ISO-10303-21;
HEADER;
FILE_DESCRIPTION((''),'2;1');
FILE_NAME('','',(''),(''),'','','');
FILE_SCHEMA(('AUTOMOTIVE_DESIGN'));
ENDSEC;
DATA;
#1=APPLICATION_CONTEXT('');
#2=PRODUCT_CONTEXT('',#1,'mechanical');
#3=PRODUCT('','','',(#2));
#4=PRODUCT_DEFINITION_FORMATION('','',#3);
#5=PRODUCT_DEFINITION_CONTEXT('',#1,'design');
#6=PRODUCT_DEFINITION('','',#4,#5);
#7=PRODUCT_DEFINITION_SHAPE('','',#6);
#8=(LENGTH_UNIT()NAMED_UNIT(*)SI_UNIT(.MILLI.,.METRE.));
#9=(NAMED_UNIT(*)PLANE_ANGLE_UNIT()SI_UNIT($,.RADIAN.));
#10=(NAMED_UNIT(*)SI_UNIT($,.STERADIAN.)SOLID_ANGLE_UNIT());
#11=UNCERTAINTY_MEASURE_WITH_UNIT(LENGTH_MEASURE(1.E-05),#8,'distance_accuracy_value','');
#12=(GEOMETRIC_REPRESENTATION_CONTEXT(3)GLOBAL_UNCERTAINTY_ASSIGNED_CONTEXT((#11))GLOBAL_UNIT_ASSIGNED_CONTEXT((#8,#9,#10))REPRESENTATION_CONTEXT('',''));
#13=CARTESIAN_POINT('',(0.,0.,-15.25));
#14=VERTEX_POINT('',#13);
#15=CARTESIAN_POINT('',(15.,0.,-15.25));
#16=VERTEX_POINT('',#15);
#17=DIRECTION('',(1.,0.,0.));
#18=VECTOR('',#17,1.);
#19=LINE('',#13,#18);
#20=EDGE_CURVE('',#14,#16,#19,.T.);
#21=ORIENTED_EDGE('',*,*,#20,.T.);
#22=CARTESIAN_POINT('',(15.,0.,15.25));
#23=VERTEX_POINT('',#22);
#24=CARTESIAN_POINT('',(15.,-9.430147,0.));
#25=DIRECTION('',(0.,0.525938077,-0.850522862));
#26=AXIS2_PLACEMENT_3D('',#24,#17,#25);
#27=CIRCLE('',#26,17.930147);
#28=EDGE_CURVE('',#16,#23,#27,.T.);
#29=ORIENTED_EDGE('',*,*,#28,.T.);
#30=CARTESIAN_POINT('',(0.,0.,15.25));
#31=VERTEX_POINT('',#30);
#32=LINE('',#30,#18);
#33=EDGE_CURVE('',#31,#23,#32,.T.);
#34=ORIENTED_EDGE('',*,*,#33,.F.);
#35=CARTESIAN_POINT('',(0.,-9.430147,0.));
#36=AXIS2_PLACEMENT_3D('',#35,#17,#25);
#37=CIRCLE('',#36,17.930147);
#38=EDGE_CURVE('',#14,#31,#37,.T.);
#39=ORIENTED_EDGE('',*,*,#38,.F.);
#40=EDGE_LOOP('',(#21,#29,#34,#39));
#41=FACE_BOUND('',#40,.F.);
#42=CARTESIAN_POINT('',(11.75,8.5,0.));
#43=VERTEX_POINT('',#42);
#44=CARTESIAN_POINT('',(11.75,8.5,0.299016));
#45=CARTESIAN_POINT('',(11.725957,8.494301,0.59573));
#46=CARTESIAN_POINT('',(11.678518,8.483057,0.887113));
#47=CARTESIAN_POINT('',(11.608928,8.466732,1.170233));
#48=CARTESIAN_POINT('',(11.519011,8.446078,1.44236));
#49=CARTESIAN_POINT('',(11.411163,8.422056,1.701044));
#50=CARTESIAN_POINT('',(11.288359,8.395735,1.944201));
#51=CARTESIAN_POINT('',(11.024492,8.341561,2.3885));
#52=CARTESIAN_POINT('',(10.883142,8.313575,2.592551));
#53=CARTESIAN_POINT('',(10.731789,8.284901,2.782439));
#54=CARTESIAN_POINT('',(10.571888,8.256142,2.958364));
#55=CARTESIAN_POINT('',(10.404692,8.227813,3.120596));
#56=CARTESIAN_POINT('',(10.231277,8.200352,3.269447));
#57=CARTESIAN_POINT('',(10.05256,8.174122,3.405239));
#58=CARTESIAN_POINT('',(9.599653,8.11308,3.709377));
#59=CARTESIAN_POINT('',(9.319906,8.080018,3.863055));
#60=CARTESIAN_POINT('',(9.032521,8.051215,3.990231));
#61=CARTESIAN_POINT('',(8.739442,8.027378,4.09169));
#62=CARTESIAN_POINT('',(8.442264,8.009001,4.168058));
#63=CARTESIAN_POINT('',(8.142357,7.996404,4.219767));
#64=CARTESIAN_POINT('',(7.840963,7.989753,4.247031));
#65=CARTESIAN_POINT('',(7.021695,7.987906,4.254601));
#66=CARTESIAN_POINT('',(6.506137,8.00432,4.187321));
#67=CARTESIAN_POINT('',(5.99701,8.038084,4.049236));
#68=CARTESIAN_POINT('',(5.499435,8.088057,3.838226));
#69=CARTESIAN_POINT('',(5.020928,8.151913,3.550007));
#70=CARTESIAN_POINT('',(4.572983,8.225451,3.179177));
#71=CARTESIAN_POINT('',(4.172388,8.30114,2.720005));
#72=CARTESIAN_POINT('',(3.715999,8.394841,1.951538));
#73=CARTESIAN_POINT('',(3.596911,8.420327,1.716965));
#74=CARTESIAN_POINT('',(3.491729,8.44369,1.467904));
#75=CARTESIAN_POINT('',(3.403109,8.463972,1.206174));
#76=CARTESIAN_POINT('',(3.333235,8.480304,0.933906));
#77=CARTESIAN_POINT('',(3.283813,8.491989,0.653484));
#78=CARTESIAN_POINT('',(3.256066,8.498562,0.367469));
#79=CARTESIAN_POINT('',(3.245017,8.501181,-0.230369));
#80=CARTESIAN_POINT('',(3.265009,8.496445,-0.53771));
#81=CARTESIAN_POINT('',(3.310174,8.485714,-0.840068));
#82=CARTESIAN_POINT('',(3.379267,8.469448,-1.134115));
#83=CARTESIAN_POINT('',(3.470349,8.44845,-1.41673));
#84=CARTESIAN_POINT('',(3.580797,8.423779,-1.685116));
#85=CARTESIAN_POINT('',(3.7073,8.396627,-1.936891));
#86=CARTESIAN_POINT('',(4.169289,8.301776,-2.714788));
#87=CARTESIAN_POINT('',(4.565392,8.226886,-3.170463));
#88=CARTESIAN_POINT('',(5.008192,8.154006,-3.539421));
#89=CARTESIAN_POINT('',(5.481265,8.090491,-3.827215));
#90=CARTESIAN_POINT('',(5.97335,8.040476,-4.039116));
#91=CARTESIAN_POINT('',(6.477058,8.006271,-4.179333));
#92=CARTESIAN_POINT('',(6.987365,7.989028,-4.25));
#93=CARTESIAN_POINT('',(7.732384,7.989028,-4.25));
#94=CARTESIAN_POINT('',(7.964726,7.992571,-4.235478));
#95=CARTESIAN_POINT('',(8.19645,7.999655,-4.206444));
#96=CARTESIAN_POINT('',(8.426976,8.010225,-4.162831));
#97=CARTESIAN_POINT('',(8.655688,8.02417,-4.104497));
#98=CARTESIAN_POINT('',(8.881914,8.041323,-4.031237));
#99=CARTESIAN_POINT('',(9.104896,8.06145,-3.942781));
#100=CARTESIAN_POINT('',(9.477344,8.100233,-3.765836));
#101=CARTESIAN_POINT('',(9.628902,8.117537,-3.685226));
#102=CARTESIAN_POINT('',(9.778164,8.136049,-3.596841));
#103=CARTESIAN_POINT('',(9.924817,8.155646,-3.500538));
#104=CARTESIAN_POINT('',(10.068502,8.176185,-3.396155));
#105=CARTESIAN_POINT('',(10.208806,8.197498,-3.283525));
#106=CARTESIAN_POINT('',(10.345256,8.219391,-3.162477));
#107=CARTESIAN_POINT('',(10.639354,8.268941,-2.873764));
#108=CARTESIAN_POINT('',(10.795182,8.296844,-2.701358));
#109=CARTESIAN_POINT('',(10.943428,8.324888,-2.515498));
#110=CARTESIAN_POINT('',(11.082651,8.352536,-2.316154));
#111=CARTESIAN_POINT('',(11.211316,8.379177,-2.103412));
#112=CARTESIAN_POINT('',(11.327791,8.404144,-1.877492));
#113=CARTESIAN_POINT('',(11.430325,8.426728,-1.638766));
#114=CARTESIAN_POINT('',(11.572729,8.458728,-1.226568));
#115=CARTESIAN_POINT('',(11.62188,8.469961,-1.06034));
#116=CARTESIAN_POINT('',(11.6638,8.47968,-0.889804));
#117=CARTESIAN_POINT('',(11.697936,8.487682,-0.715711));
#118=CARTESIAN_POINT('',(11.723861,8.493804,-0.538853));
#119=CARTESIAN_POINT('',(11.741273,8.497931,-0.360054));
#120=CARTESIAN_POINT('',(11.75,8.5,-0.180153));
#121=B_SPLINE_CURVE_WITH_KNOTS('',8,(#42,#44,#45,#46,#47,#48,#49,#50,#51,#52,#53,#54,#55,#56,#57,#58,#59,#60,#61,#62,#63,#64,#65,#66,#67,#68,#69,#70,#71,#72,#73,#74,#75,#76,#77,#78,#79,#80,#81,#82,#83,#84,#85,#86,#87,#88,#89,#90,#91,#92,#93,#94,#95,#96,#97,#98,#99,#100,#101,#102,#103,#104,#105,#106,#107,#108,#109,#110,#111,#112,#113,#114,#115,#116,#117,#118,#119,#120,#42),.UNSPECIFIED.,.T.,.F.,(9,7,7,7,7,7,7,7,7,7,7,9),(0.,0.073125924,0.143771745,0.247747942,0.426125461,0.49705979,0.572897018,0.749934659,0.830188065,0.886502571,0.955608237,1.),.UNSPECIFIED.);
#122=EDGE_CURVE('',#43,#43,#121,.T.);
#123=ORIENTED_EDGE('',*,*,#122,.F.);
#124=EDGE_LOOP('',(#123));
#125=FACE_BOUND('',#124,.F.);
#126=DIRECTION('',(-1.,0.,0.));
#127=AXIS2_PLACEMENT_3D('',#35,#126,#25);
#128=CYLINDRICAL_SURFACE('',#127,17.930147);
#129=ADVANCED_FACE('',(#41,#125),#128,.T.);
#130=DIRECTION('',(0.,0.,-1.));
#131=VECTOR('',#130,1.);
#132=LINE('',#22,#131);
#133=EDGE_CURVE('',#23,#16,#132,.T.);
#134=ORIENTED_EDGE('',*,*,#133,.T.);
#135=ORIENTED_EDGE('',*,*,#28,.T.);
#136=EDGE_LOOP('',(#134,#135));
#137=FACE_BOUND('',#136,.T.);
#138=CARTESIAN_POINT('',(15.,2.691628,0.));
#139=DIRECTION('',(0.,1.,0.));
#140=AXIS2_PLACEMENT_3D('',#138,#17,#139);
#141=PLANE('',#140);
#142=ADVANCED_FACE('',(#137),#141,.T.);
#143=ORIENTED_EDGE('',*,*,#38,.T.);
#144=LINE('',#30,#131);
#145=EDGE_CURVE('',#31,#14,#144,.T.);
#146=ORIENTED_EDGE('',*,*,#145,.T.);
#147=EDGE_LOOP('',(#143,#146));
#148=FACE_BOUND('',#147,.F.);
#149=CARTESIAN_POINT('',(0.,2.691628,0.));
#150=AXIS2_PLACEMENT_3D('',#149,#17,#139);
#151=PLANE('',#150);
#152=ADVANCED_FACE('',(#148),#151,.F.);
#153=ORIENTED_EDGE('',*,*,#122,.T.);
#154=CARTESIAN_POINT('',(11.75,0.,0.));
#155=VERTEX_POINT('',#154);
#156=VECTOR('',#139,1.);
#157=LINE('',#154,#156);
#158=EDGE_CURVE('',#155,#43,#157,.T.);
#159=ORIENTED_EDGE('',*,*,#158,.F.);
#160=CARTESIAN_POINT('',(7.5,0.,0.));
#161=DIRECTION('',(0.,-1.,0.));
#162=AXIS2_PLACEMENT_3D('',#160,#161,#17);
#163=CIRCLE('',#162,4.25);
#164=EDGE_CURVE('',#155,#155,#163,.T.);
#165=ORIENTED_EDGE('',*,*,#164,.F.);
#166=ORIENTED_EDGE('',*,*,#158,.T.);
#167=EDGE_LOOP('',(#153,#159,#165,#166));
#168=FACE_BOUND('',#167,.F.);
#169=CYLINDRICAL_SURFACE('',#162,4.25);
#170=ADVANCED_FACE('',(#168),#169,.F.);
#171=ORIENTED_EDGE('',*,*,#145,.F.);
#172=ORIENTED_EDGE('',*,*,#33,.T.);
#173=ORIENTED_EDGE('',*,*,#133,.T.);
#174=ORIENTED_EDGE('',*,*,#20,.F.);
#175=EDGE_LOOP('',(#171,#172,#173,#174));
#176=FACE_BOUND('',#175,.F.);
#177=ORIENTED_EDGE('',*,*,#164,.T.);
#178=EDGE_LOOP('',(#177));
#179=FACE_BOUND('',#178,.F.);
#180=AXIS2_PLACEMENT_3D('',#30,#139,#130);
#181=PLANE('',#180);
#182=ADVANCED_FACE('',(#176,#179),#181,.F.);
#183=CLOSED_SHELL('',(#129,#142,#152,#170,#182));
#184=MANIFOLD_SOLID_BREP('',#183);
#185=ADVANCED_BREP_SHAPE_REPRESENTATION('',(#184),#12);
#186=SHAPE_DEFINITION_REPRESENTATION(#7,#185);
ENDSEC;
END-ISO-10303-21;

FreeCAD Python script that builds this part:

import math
import FreeCAD as App
import Part
import Sketcher
from FreeCAD import Vector

doc = App.newDocument("Part")
params = doc.addObject("Spreadsheet::Sheet", "Params")
for row, (alias, value) in enumerate([
    ("sketch1_height", "30.5 mm"),
    ("pad1_length", "15 mm"),
    ("sketch2_diameter", "8.5 mm"),
    ("pocket1_length", "25 mm"),
], start=1):
    params.set(f"A{row}", alias)
    params.set(f"B{row}", "=" + value)
    params.setAlias(f"B{row}", alias)

body = doc.addObject("PartDesign::Body", "Body")

sketch1 = body.newObject("Sketcher::SketchObject", "Sketch")
sketch1.AttachmentSupport = (doc.getObject("YZ_Plane"), [""])
sketch1.MapMode = "FlatFace"
sketch1.addGeometry(Part.ArcOfCircle(Part.Circle(Vector(-9, 0, 0), Vector(0, 0, 1), 18), math.radians(-58), math.radians(58)), False)
sketch1.addGeometry(Part.LineSegment(Vector(0, 15, 0), Vector(0, -15, 0)), False)
sketch1.addConstraint(Sketcher.Constraint("Coincident", 0, 1, 1, 2))
sketch1.addConstraint(Sketcher.Constraint("Coincident", 1, 1, 0, 2))
sketch1.addConstraint(Sketcher.Constraint("Vertical", 1))
sketch1.addConstraint(Sketcher.Constraint("Symmetric", 0, 1, 1, 1, -1, 1))
sketch1.addConstraint(Sketcher.Constraint("DistanceY", 1, 2, 1, 1, 30.5))
sketch1.addConstraint(Sketcher.Constraint("Radius", 0, 17.930147))
sketch1.setExpression("Constraints[4]", "Params.sketch1_height")
pad1 = body.newObject("PartDesign::Pad", "Pad")
pad1.Profile = sketch1
pad1.setExpression("Length", "Params.pad1_length")

sketch2 = body.newObject("Sketcher::SketchObject", "Sketch001")
sketch2.AttachmentSupport = (doc.getObject("XZ_Plane"), [""])
sketch2.MapMode = "FlatFace"
sketch2.addGeometry(Part.Circle(Vector(7.5, 0, 0), Vector(0, 0, 1), 4.2), False)
sketch2.addConstraint(Sketcher.Constraint("PointOnObject", 0, 3, -1))
sketch2.addConstraint(Sketcher.Constraint("Diameter", 0, 8.5))
sketch2.addConstraint(Sketcher.Constraint("DistanceX", -1, 1, 0, 3, 7.5))
sketch2.setExpression("Constraints[1]", "Params.sketch2_diameter")
pocket1 = body.newObject("PartDesign::Pocket", "Pocket")
pocket1.Profile = sketch2
pocket1.setExpression("Length", "Params.pocket1_length")

doc.recompute()
